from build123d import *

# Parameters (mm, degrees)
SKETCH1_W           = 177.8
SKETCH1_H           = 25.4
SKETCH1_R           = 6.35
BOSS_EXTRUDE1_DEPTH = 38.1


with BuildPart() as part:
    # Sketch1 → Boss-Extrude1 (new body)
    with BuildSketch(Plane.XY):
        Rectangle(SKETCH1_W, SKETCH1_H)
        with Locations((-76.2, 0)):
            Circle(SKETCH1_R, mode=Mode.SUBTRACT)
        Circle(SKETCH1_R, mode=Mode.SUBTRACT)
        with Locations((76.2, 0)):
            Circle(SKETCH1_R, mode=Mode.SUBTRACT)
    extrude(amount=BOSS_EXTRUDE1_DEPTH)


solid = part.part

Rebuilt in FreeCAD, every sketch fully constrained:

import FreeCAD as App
import Part
import Sketcher
Q = App.Units.Quantity

doc = App.newDocument("Part")
body = doc.addObject("PartDesign::Body", "Body")

sketch1 = body.newObject("Sketcher::SketchObject", "Sketch")
sketch1.AttachmentSupport = (doc.getObject("XY_Plane"), [""])
sketch1.MapMode = "FlatFace"
sketch1.addGeometry(Part.LineSegment(App.Vector(-89, 13, 0), App.Vector(-89, -13, 0)), False)
sketch1.addGeometry(Part.LineSegment(App.Vector(-89, -13, 0), App.Vector(89, -13, 0)), False)
sketch1.addGeometry(Part.LineSegment(App.Vector(89, -13, 0), App.Vector(89, 13, 0)), False)
sketch1.addGeometry(Part.LineSegment(App.Vector(89, 13, 0), App.Vector(-89, 13, 0)), False)
sketch1.addGeometry(Part.Circle(App.Vector(-76, 0, 0), App.Vector(0, 0, 1), 6), False)
sketch1.addGeometry(Part.Circle(App.Vector(0, 0, 0), App.Vector(0, 0, 1), 6), False)
sketch1.addGeometry(Part.Circle(App.Vector(76, 0, 0), App.Vector(0, 0, 1), 6), False)
sketch1.addConstraint(Sketcher.Constraint("Coincident", 0, 2, 1, 1))
sketch1.addConstraint(Sketcher.Constraint("Coincident", 1, 2, 2, 1))
sketch1.addConstraint(Sketcher.Constraint("Coincident", 2, 2, 3, 1))
sketch1.addConstraint(Sketcher.Constraint("Coincident", 3, 2, 0, 1))
sketch1.addConstraint(Sketcher.Constraint("Vertical", 0))
sketch1.addConstraint(Sketcher.Constraint("Horizontal", 1))
sketch1.addConstraint(Sketcher.Constraint("Vertical", 2))
sketch1.addConstraint(Sketcher.Constraint("Horizontal", 3))
sketch1.addConstraint(Sketcher.Constraint("Coincident", 5, 3, -1, 1))
sketch1.addConstraint(Sketcher.Constraint("Equal", 4, 5))
sketch1.addConstraint(Sketcher.Constraint("Equal", 5, 6))
sketch1.addConstraint(Sketcher.Constraint("Symmetric", 4, 3, 6, 3, -1, 1))
sketch1.addConstraint(Sketcher.Constraint("Symmetric", 0, 2, 2, 2, -1, 1))
sketch1.addConstraint(Sketcher.Constraint("PointOnObject", 4, 3, -1))
sketch1.addConstraint(Sketcher.Constraint("Diameter", 4, Q("0.5 in")))
sketch1.addConstraint(Sketcher.Constraint("DistanceX", 1, 1, 1, 2, Q("7 in")))
sketch1.addConstraint(Sketcher.Constraint("DistanceY", 0, 2, 0, 1, Q("1 in")))
sketch1.addConstraint(Sketcher.Constraint("DistanceX", 4, 3, -1, 1, Q("3 in")))
pad1 = body.newObject("PartDesign::Pad", "Pad")
pad1.Profile = sketch1
pad1.Length = Q("1.5 in")

doc.recompute()
